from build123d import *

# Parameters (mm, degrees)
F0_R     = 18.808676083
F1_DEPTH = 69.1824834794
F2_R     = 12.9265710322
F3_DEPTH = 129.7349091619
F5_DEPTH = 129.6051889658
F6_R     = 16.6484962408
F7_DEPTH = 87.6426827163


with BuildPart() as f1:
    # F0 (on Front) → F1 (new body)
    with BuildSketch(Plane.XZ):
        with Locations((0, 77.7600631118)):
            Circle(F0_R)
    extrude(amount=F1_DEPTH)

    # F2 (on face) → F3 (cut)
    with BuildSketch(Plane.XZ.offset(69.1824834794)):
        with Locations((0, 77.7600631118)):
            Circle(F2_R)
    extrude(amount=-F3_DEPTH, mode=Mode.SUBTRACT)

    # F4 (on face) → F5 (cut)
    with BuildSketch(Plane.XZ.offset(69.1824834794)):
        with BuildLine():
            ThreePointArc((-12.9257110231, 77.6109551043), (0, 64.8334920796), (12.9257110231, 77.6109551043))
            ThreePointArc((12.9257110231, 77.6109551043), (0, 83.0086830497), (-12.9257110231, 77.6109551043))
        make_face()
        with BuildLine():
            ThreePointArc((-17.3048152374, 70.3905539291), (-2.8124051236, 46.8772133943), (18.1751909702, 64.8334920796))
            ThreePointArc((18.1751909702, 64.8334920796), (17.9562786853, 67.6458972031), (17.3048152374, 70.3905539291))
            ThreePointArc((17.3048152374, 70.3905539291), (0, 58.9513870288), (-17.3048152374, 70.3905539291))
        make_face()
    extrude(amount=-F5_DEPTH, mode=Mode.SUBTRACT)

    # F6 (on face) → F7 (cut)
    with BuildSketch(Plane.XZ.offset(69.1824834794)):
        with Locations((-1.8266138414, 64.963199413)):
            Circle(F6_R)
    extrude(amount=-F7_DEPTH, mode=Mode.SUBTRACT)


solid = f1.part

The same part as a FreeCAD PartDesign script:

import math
import FreeCAD as App
import Part
import Sketcher
from FreeCAD import Vector
Q = App.Units.Quantity

doc = App.newDocument("Part")
params = doc.addObject("Spreadsheet::Sheet", "Params")
for row, (alias, value) in enumerate([
    ("pad1_length", "69.182483 mm"),
    ("pocket1_length", "129.734909 mm"),
    ("pocket2_length", "129.605189 mm"),
    ("pocket3_length", "87.642683 mm"),
], start=1):
    params.set(f"A{row}", alias)
    params.set(f"B{row}", "=" + value)
    params.setAlias(f"B{row}", alias)

body = doc.addObject("PartDesign::Body", "Body")

sketch1 = doc.addObject("Sketcher::SketchObject", "Sketch")
body.addObject(sketch1)
sketch1.AttachmentSupport = (doc.XZ_Plane, [""])
sketch1.MapMode = "FlatFace"
sketch1.addGeometry(Part.Circle(Vector(0, 78, 0), Vector(0, 0, 1), 19), False)
sketch1.addConstraint([
    Sketcher.Constraint("PointOnObject", 0, 3, -2),
    Sketcher.Constraint("Diameter", 0, Q("37.617352 mm")),
    Sketcher.Constraint("DistanceY", -1, 1, 0, 3, Q("77.760063 mm")),
])
pad1 = doc.addObject("PartDesign::Pad", "Pad")
body.addObject(pad1)
pad1.Profile = sketch1
pad1.setExpression("Length", "Params.pad1_length")

sketch2 = doc.addObject("Sketcher::SketchObject", "Sketch001")
body.addObject(sketch2)
sketch2.AttachmentSupport = (doc.XZ_Plane, [""])
sketch2.MapMode = "FlatFace"
sketch2.AttachmentOffset = App.Placement(Vector(0, 0, 69.182483), App.Rotation())
sketch2.addGeometry(Part.Circle(Vector(0, 78, 0), Vector(0, 0, 1), 13), False)
sketch2.addConstraint([
    Sketcher.Constraint("PointOnObject", 0, 3, -2),
    Sketcher.Constraint("Diameter", 0, Q("25.853142 mm")),
    Sketcher.Constraint("DistanceY", -1, 1, 0, 3, Q("77.760063 mm")),
])
pocket1 = doc.addObject("PartDesign::Pocket", "Pocket")
body.addObject(pocket1)
pocket1.Profile = sketch2
pocket1.setExpression("Length", "Params.pocket1_length")

sketch3 = doc.addObject("Sketcher::SketchObject", "Sketch002")
body.addObject(sketch3)
sketch3.AttachmentSupport = (doc.XZ_Plane, [""])
sketch3.MapMode = "FlatFace"
sketch3.AttachmentOffset = App.Placement(Vector(0, 0, 69.182483), App.Rotation())
sketch3.addGeometry([
    Part.ArcOfCircle(Part.Circle(Vector(0, 78, 0), Vector(0, 0, 1), 13), math.radians(-179), math.radians(-1)),
    Part.ArcOfCircle(Part.Circle(Vector(0, 65, 0), Vector(0, 0, 1), 18), math.radians(45), math.radians(135)),
    Part.ArcOfCircle(Part.Circle(Vector(0, 65, 0), Vector(0, 0, 1), 18), math.radians(162), math.radians(360)),
    Part.ArcOfCircle(Part.Circle(Vector(0, 65, 0), Vector(0, 0, 1), 18), math.radians(0), math.radians(17.8)),
    Part.ArcOfCircle(Part.Circle(Vector(0, 78, 0), Vector(0, 0, 1), 19), math.radians(-157), math.radians(-23)),
], False)
sketch3.addConstraint([
    Sketcher.Constraint("Coincident", 0, 1, 1, 2),
    Sketcher.Constraint("Coincident", 1, 1, 0, 2),
    Sketcher.Constraint("Tangent", 2, 2, 3, 1),
    Sketcher.Constraint("Coincident", 3, 2, 4, 2),
    Sketcher.Constraint("Coincident", 4, 1, 2, 1),
    Sketcher.Constraint("Coincident", 2, 3, 1, 3),
    Sketcher.Constraint("Coincident", 4, 3, 0, 3),
    Sketcher.Constraint("Equal", 1, 2),
    Sketcher.Constraint("Equal", 2, 3),
    Sketcher.Constraint("Symmetric", 0, 1, 1, 1, -2),
    Sketcher.Constraint("Horizontal", 3, 3, 2, 2),
    Sketcher.Constraint("Radius", 0, Q("12.926571 mm")),
    Sketcher.Constraint("Radius", 1, Q("18.175191 mm")),
    Sketcher.Constraint("Radius", 4, Q("18.808676 mm")),
    Sketcher.Constraint("DistanceY", 3, 2, 1, 1, Q("7.220401 mm")),
    Sketcher.Constraint("DistanceY", -1, 1, 0, 3, Q("77.760063 mm")),
])
pocket2 = doc.addObject("PartDesign::Pocket", "Pocket001")
body.addObject(pocket2)
pocket2.Profile = sketch3
pocket2.setExpression("Length", "Params.pocket2_length")

sketch4 = doc.addObject("Sketcher::SketchObject", "Sketch003")
body.addObject(sketch4)
sketch4.AttachmentSupport = (doc.XZ_Plane, [""])
sketch4.MapMode = "FlatFace"
sketch4.AttachmentOffset = App.Placement(Vector(0, 0, 69.182483), App.Rotation())
sketch4.addGeometry(Part.Circle(Vector(-2, 65, 0), Vector(0, 0, 1), 17), False)
sketch4.addConstraint([
    Sketcher.Constraint("Diameter", 0, Q("33.296992 mm")),
    Sketcher.Constraint("DistanceY", -1, 1, 0, 3, Q("64.963199 mm")),
    Sketcher.Constraint("DistanceX", 0, 3, -1, 1, Q("1.826614 mm")),
])
pocket3 = doc.addObject("PartDesign::Pocket", "Pocket002")
body.addObject(pocket3)
pocket3.Profile = sketch4
pocket3.setExpression("Length", "Params.pocket3_length")

doc.recompute()
